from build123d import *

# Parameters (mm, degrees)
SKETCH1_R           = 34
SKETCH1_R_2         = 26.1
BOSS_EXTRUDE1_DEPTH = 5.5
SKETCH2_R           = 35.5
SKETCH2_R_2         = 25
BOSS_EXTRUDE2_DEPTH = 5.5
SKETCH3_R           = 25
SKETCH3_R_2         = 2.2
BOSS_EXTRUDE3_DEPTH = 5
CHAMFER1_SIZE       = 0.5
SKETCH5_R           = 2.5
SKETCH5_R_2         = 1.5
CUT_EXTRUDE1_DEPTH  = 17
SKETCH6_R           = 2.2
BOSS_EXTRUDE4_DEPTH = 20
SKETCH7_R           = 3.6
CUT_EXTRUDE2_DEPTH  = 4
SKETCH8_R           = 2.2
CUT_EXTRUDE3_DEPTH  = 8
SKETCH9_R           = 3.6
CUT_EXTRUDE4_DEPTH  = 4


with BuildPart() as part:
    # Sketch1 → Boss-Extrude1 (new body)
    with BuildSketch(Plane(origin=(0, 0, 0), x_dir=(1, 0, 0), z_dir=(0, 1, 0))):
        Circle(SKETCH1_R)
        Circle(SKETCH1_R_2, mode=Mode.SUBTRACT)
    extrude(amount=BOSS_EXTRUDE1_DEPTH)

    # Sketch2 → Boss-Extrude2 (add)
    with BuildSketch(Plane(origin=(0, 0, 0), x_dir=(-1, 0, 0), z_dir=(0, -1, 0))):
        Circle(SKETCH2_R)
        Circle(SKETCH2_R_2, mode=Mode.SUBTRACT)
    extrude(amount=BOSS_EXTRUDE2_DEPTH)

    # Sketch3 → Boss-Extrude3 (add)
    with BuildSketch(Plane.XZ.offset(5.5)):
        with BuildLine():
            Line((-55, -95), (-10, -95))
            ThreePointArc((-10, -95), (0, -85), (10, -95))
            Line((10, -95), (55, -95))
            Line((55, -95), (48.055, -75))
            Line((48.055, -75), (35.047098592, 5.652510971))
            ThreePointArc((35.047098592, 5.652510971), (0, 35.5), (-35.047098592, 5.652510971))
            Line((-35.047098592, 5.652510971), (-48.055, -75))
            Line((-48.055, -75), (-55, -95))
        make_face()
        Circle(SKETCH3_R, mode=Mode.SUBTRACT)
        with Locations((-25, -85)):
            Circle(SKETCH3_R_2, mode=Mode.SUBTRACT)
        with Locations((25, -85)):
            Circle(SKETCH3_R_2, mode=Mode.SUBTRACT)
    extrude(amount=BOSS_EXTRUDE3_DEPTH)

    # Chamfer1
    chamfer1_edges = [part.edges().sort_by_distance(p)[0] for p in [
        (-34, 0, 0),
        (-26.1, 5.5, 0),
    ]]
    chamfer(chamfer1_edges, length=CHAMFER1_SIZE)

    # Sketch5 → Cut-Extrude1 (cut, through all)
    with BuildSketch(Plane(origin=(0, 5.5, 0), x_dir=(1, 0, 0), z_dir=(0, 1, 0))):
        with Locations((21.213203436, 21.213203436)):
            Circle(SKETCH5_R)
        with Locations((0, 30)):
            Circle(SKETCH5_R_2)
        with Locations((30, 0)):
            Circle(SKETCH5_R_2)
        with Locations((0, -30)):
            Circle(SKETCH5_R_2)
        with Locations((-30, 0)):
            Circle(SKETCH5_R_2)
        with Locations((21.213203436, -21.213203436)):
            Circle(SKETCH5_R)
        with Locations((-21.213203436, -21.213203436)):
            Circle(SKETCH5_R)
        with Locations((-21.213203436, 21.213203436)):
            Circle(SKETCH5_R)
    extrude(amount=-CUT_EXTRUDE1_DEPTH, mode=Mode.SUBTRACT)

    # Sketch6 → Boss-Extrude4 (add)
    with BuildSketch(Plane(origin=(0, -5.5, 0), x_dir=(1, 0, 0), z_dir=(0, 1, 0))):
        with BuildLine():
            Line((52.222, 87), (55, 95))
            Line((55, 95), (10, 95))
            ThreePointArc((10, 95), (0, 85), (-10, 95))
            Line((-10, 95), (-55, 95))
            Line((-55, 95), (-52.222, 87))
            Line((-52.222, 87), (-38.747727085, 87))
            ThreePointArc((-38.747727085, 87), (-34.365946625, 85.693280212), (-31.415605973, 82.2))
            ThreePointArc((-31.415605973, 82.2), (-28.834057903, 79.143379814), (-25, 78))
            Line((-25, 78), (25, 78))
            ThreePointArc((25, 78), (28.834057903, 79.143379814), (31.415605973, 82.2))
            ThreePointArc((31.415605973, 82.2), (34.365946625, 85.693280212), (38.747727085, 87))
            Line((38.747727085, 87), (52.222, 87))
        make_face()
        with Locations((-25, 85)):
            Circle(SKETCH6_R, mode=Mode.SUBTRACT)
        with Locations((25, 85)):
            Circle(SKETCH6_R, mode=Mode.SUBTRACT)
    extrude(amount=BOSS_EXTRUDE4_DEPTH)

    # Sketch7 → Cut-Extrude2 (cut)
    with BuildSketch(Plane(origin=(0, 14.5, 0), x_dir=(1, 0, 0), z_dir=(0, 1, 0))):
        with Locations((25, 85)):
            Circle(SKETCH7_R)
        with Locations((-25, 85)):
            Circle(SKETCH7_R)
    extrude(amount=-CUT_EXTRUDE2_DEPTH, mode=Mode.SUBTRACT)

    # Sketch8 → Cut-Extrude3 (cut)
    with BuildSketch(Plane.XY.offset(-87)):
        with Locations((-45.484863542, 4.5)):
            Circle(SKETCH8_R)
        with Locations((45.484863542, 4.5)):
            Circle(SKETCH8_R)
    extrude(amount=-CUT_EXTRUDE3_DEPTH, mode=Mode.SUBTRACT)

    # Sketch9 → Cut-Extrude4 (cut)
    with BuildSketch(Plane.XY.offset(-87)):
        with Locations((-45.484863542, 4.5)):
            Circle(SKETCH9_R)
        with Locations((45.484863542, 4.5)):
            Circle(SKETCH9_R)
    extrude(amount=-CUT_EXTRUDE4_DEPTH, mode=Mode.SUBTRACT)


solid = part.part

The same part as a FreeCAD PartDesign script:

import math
import FreeCAD as App
import Part
import Sketcher
from FreeCAD import Vector
Q = App.Units.Quantity


def edges_at(feature, points):
    """Names of the edges that pass closest to the given points."""
    edges = feature.Shape.Edges
    near = lambda p: min(range(len(edges)), key=lambda i: edges[i].distToShape(Part.Vertex(*p))[0])
    return sorted({f"Edge{near(p) + 1}" for p in points})

doc = App.newDocument("Part")
params = doc.addObject("Spreadsheet::Sheet", "Params")
for row, (alias, value) in enumerate([
    ("sketch1_diameter", "68 mm"),
    ("sketch1_diameter2", "52.2 mm"),
    ("pad1_length", "5.5 mm"),
    ("sketch2_diameter", "71 mm"),
    ("sketch2_diameter2", "50 mm"),
    ("pad2_length", "5.5 mm"),
    ("sketch3_diameter", "50 mm"),
    ("sketch3_radius", "10 mm"),
    ("sketch3_diameter2", "4.4 mm"),
    ("sketch3_radius2", "35.5 mm"),
    ("sketch3_width", "45 mm"),
    ("pad3_length", "5 mm"),
    ("chamfer_size", "0.5 mm"),
    ("sketch4_diameter", "5 mm"),
    ("sketch4_diameter2", "3 mm"),
    ("sketch5_radius", "10 mm"),
    ("sketch5_radius2", "8 mm"),
    ("sketch5_radius3", "7 mm"),
    ("sketch5_diameter", "4.4 mm"),
    ("sketch5_width", "45 mm"),
    ("pad4_length", "20 mm"),
    ("sketch6_diameter", "7.2 mm"),
    ("pocket2_length", "4 mm"),
    ("sketch7_diameter", "4.4 mm"),
    ("pocket3_length", "8 mm"),
    ("sketch8_diameter", "7.2 mm"),
    ("pocket4_length", "4 mm"),
], start=1):
    params.set(f"A{row}", alias)
    params.set(f"B{row}", "=" + value)
    params.setAlias(f"B{row}", alias)

body = doc.addObject("PartDesign::Body", "Body")

sketch1 = body.newObject("Sketcher::SketchObject", "Sketch")
sketch1.AttachmentSupport = (doc.getObject("XZ_Plane"), [""])
sketch1.MapMode = "FlatFace"
sketch1.addGeometry([
    Part.Circle(Vector(0, 0, 0), Vector(0, 0, 1), 34),
    Part.Circle(Vector(0, 0, 0), Vector(0, 0, 1), 26.1),
], False)
sketch1.addConstraint([
    Sketcher.Constraint("Coincident", 0, 3, -1, 1),
    Sketcher.Constraint("Coincident", 1, 3, -1, 1),
    Sketcher.Constraint("Diameter", 0, Q("68 mm")),
    Sketcher.Constraint("Diameter", 1, Q("52.2 mm")),
])
sketch1.setExpression("Constraints[2]", "Params.sketch1_diameter")
sketch1.setExpression("Constraints[3]", "Params.sketch1_diameter2")
pad1 = body.newObject("PartDesign::Pad", "Pad")
pad1.Profile = sketch1
pad1.setExpression("Length", "Params.pad1_length")
pad1.Reversed = True

sketch2 = body.newObject("Sketcher::SketchObject", "Sketch001")
sketch2.AttachmentSupport = (doc.getObject("XZ_Plane"), [""])
sketch2.MapMode = "FlatFace"
sketch2.addGeometry([
    Part.Circle(Vector(0, 0, 0), Vector(0, 0, 1), 35.5),
    Part.Circle(Vector(0, 0, 0), Vector(0, 0, 1), 25),
], False)
sketch2.addConstraint([
    Sketcher.Constraint("Coincident", 0, 3, -1, 1),
    Sketcher.Constraint("Coincident", 1, 3, -1, 1),
    Sketcher.Constraint("Diameter", 0, Q("71 mm")),
    Sketcher.Constraint("Diameter", 1, Q("50 mm")),
])
sketch2.setExpression("Constraints[2]", "Params.sketch2_diameter")
sketch2.setExpression("Constraints[3]", "Params.sketch2_diameter2")
pad2 = body.newObject("PartDesign::Pad", "Pad001")
pad2.Profile = sketch2
pad2.setExpression("Length", "Params.pad2_length")

sketch3 = body.newObject("Sketcher::SketchObject", "Sketch002")
sketch3.AttachmentSupport = (doc.getObject("XZ_Plane"), [""])
sketch3.MapMode = "FlatFace"
sketch3.AttachmentOffset = App.Placement(Vector(0, 0, 5.5), App.Rotation())
sketch3.addGeometry([
    Part.LineSegment(Vector(-55, -95, 0), Vector(-10, -95, 0)),
    Part.ArcOfCircle(Part.Circle(Vector(0, -95, 0), Vector(0, 0, 1), 10), math.radians(0), math.radians(180)),
    Part.LineSegment(Vector(10, -95, 0), Vector(55, -95, 0)),
    Part.LineSegment(Vector(55, -95, 0), Vector(48.055, -75, 0)),
    Part.LineSegment(Vector(48.055, -75, 0), Vector(35.047099, 5.652511, 0)),
    Part.ArcOfCircle(Part.Circle(Vector(0, 0, 0), Vector(0, 0, 1), 35.5), math.radians(9.161954), math.radians(170.838046)),
    Part.LineSegment(Vector(-35.047099, 5.652511, 0), Vector(-48.055, -75, 0)),
    Part.LineSegment(Vector(-48.055, -75, 0), Vector(-55, -95, 0)),
    Part.Circle(Vector(-25, -85, 0), Vector(0, 0, 1), 2.2),
    Part.Circle(Vector(25, -85, 0), Vector(0, 0, 1), 2.2),
    Part.Circle(Vector(0, 0, 0), Vector(0, 0, 1), 25),
], False)
sketch3.addConstraint([
    Sketcher.Constraint("Coincident", 0, 2, 1, 2),
    Sketcher.Constraint("Coincident", 1, 1, 2, 1),
    Sketcher.Constraint("Coincident", 2, 2, 3, 1),
    Sketcher.Constraint("Coincident", 3, 2, 4, 1),
    Sketcher.Constraint("Tangent", 4, 2, 5, 1),
    Sketcher.Constraint("Tangent", 5, 2, 6, 1),
    Sketcher.Constraint("Coincident", 6, 2, 7, 1),
    Sketcher.Constraint("Coincident", 7, 2, 0, 1),
    Sketcher.Constraint("Horizontal", 0),
    Sketcher.Constraint("Horizontal", 2),
    Sketcher.Constraint("Coincident", 5, 3, -1, 1),
    Sketcher.Constraint("Coincident", 10, 3, -1, 1),
    Sketcher.Constraint("Equal", 8, 9),
    Sketcher.Constraint("Symmetric", 8, 3, 9, 3, -2),
    Sketcher.Constraint("Symmetric", 0, 2, 1, 1, -2),
    Sketcher.Constraint("Symmetric", 3, 2, 6, 2, -2),
    Sketcher.Constraint("Horizontal", 1, 3, 0, 2),
    Sketcher.Constraint("Equal", 0, 2),
    Sketcher.Constraint("Diameter", 10, Q("50 mm")),
    Sketcher.Constraint("Radius", 1, Q("10 mm")),
    Sketcher.Constraint("Diameter", 8, Q("4.4 mm")),
    Sketcher.Constraint("Radius", 5, Q("35.5 mm")),
    Sketcher.Constraint("DistanceX", 0, 1, 0, 2, Q("45 mm")),
    Sketcher.Constraint("DistanceY", 1, 3, -1, 1, Q("95 mm")),
    Sketcher.Constraint("DistanceX", 8, 3, -1, 1, Q("25 mm")),
    Sketcher.Constraint("DistanceY", 8, 3, -1, 1, Q("85 mm")),
    Sketcher.Constraint("DistanceY", 3, 2, -1, 1, Q("75 mm")),
    Sketcher.Constraint("DistanceX", -1, 1, 3, 2, Q("48.055 mm")),
])
sketch3.setExpression("Constraints[18]", "Params.sketch3_diameter")
sketch3.setExpression("Constraints[19]", "Params.sketch3_radius")
sketch3.setExpression("Constraints[20]", "Params.sketch3_diameter2")
sketch3.setExpression("Constraints[21]", "Params.sketch3_radius2")
sketch3.setExpression("Constraints[22]", "Params.sketch3_width")
pad3 = body.newObject("PartDesign::Pad", "Pad002")
pad3.Profile = sketch3
pad3.setExpression("Length", "Params.pad3_length")
doc.recompute()

chamfer = body.newObject("PartDesign::Chamfer", "Chamfer")
chamfer.Base = (pad3, edges_at(pad3, [(-34, 0, 0), (-26.1, 5.5, 0)]))
chamfer.setExpression("Size", "Params.chamfer_size")

sketch4 = body.newObject("Sketcher::SketchObject", "Sketch003")
sketch4.AttachmentSupport = (doc.getObject("XZ_Plane"), [""])
sketch4.MapMode = "FlatFace"
sketch4.AttachmentOffset = App.Placement(Vector(0, 0, -5.5), App.Rotation())
sketch4.addGeometry([
    Part.Circle(Vector(21.213203, -21.213203, 0), Vector(0, 0, 1), 2.5),
    Part.Circle(Vector(0, -30, 0), Vector(0, 0, 1), 1.5),
    Part.Circle(Vector(30, 0, 0), Vector(0, 0, 1), 1.5),
    Part.Circle(Vector(0, 30, 0), Vector(0, 0, 1), 1.5),
    Part.Circle(Vector(-30, 0, 0), Vector(0, 0, 1), 1.5),
    Part.Circle(Vector(21.213203, 21.213203, 0), Vector(0, 0, 1), 2.5),
    Part.Circle(Vector(-21.213203, 21.213203, 0), Vector(0, 0, 1), 2.5),
    Part.Circle(Vector(-21.213203, -21.213203, 0), Vector(0, 0, 1), 2.5),
], False)
sketch4.addConstraint([
    Sketcher.Constraint("Equal", 1, 2),
    Sketcher.Constraint("Equal", 2, 3),
    Sketcher.Constraint("Equal", 3, 4),
    Sketcher.Constraint("Equal", 0, 5),
    Sketcher.Constraint("Equal", 5, 6),
    Sketcher.Constraint("Equal", 6, 7),
    Sketcher.Constraint("Symmetric", 1, 3, 3, 3, -1, 1),
    Sketcher.Constraint("Symmetric", 2, 3, 4, 3, -1, 1),
    Sketcher.Constraint("Symmetric", 0, 3, 6, 3, -1, 1),
    Sketcher.Constraint("Symmetric", 5, 3, 7, 3, -1, 1),
    Sketcher.Constraint("Symmetric", 5, 3, 6, 3, -2),
    Sketcher.Constraint("PointOnObject", 1, 3, -2),
    Sketcher.Constraint("PointOnObject", 2, 3, -1),
    Sketcher.Constraint("Diameter", 0, Q("5 mm")),
    Sketcher.Constraint("Diameter", 1, Q("3 mm")),
    Sketcher.Constraint("DistanceY", 1, 3, -1, 1, Q("30 mm")),
    Sketcher.Constraint("DistanceX", -1, 1, 2, 3, Q("30 mm")),
    Sketcher.Constraint("DistanceX", -1, 1, 0, 3, Q("21.213203 mm")),
    Sketcher.Constraint("DistanceY", 0, 3, -1, 1, Q("21.213203 mm")),
])
sketch4.setExpression("Constraints[13]", "Params.sketch4_diameter")
sketch4.setExpression("Constraints[14]", "Params.sketch4_diameter2")
pocket1 = body.newObject("PartDesign::Pocket", "Pocket")
pocket1.Profile = sketch4
pocket1.Type = "ThroughAll"
pocket1.Reversed = True

sketch5 = body.newObject("Sketcher::SketchObject", "Sketch004")
sketch5.AttachmentSupport = (doc.getObject("XZ_Plane"), [""])
sketch5.MapMode = "FlatFace"
sketch5.AttachmentOffset = App.Placement(Vector(0, 0, 5.5), App.Rotation())
sketch5.addGeometry([
    Part.LineSegment(Vector(52.222, -87, 0), Vector(55, -95, 0)),
    Part.LineSegment(Vector(55, -95, 0), Vector(10, -95, 0)),
    Part.ArcOfCircle(Part.Circle(Vector(0, -95, 0), Vector(0, 0, 1), 10), math.radians(0), math.radians(180)),
    Part.LineSegment(Vector(-10, -95, 0), Vector(-55, -95, 0)),
    Part.LineSegment(Vector(-55, -95, 0), Vector(-52.222, -87, 0)),
    Part.LineSegment(Vector(-52.222, -87, 0), Vector(-38.747727, -87, 0)),
    Part.ArcOfCircle(Part.Circle(Vector(-38.747727, -79, 0), Vector(0, 0, 1), 8), math.radians(-90), math.radians(-23.578178)),
    Part.ArcOfCircle(Part.Circle(Vector(-25, -85, 0), Vector(0, 0, 1), 7), math.radians(90), math.radians(156.421822)),
    Part.LineSegment(Vector(-25, -78, 0), Vector(25, -78, 0)),
    Part.ArcOfCircle(Part.Circle(Vector(25, -85, 0), Vector(0, 0, 1), 7), math.radians(23.578178), math.radians(90)),
    Part.ArcOfCircle(Part.Circle(Vector(38.747727, -79, 0), Vector(0, 0, 1), 8), math.radians(-156.421822), math.radians(-90)),
    Part.LineSegment(Vector(38.747727, -87, 0), Vector(52.222, -87, 0)),
    Part.Circle(Vector(-25, -85, 0), Vector(0, 0, 1), 2.2),
    Part.Circle(Vector(25, -85, 0), Vector(0, 0, 1), 2.2),
], False)
sketch5.addConstraint([
    Sketcher.Constraint("Coincident", 0, 2, 1, 1),
    Sketcher.Constraint("Coincident", 1, 2, 2, 1),
    Sketcher.Constraint("Coincident", 2, 2, 3, 1),
    Sketcher.Constraint("Coincident", 3, 2, 4, 1),
    Sketcher.Constraint("Coincident", 4, 2, 5, 1),
    Sketcher.Constraint("Tangent", 5, 2, 6, 1),
    Sketcher.Constraint("Tangent", 6, 2, 7, 2),
    Sketcher.Constraint("Tangent", 7, 1, 8, 1),
    Sketcher.Constraint("Tangent", 8, 2, 9, 2),
    Sketcher.Constraint("Tangent", 9, 1, 10, 1),
    Sketcher.Constraint("Tangent", 10, 2, 11, 1),
    Sketcher.Constraint("Coincident", 11, 2, 0, 1),
    Sketcher.Constraint("Horizontal", 1),
    Sketcher.Constraint("Horizontal", 3),
    Sketcher.Constraint("Horizontal", 5),
    Sketcher.Constraint("Horizontal", 8),
    Sketcher.Constraint("Horizontal", 11),
    Sketcher.Constraint("Coincident", 12, 3, 7, 3),
    Sketcher.Constraint("Coincident", 13, 3, 9, 3),
    Sketcher.Constraint("Equal", 7, 9),
    Sketcher.Constraint("Equal", 6, 10),
    Sketcher.Constraint("Equal", 12, 13),
    Sketcher.Constraint("Symmetric", 6, 3, 10, 3, -2),
    Sketcher.Constraint("Symmetric", 1, 2, 2, 2, -2),
    Sketcher.Constraint("Horizontal", 2, 3, 0, 2),
    Sketcher.Constraint("Equal", 1, 3),
    Sketcher.Constraint("Equal", 5, 11),
    Sketcher.Constraint("Radius", 2, Q("10 mm")),
    Sketcher.Constraint("Radius", 6, Q("8 mm")),
    Sketcher.Constraint("Radius", 7, Q("7 mm")),
    Sketcher.Constraint("Diameter", 12, Q("4.4 mm")),
    Sketcher.Constraint("DistanceX", 1, 2, 1, 1, Q("45 mm")),
    Sketcher.Constraint("DistanceX", 8, 1, 8, 2, Q("50 mm")),
    Sketcher.Constraint("DistanceY", 2, 3, -1, 1, Q("95 mm")),
    Sketcher.Constraint("DistanceY", 6, 3, -1, 1, Q("79 mm")),
    Sketcher.Constraint("DistanceY", 7, 3, -1, 1, Q("85 mm")),
    Sketcher.Constraint("DistanceX", 4, 2, -1, 1, Q("52.222 mm")),
])
sketch5.setExpression("Constraints[27]", "Params.sketch5_radius")
sketch5.setExpression("Constraints[28]", "Params.sketch5_radius2")
sketch5.setExpression("Constraints[29]", "Params.sketch5_radius3")
sketch5.setExpression("Constraints[30]", "Params.sketch5_diameter")
sketch5.setExpression("Constraints[31]", "Params.sketch5_width")
pad4 = body.newObject("PartDesign::Pad", "Pad003")
pad4.Profile = sketch5
pad4.setExpression("Length", "Params.pad4_length")
pad4.Reversed = True

sketch6 = body.newObject("Sketcher::SketchObject", "Sketch005")
sketch6.AttachmentSupport = (doc.getObject("XZ_Plane"), [""])
sketch6.MapMode = "FlatFace"
sketch6.AttachmentOffset = App.Placement(Vector(0, 0, -14.5), App.Rotation())
sketch6.addGeometry([
    Part.Circle(Vector(25, -85, 0), Vector(0, 0, 1), 3.6),
    Part.Circle(Vector(-25, -85, 0), Vector(0, 0, 1), 3.6),
], False)
sketch6.addConstraint([
    Sketcher.Constraint("Equal", 0, 1),
    Sketcher.Constraint("Symmetric", 0, 3, 1, 3, -2),
    Sketcher.Constraint("Diameter", 0, Q("7.2 mm")),
    Sketcher.Constraint("DistanceX", -1, 1, 0, 3, Q("25 mm")),
    Sketcher.Constraint("DistanceY", 0, 3, -1, 1, Q("85 mm")),
])
sketch6.setExpression("Constraints[2]", "Params.sketch6_diameter")
pocket2 = body.newObject("PartDesign::Pocket", "Pocket001")
pocket2.Profile = sketch6
pocket2.setExpression("Length", "Params.pocket2_length")
pocket2.Reversed = True

sketch7 = body.newObject("Sketcher::SketchObject", "Sketch006")
sketch7.AttachmentSupport = (doc.getObject("XY_Plane"), [""])
sketch7.MapMode = "FlatFace"
sketch7.AttachmentOffset = App.Placement(Vector(0, 0, -87), App.Rotation())
sketch7.addGeometry([
    Part.Circle(Vector(-45.484864, 4.5, 0), Vector(0, 0, 1), 2.2),
    Part.Circle(Vector(45.484864, 4.5, 0), Vector(0, 0, 1), 2.2),
], False)
sketch7.addConstraint([
    Sketcher.Constraint("Equal", 0, 1),
    Sketcher.Constraint("Symmetric", 0, 3, 1, 3, -2),
    Sketcher.Constraint("Diameter", 0, Q("4.4 mm")),
    Sketcher.Constraint("DistanceY", -1, 1, 0, 3, Q("4.5 mm")),
    Sketcher.Constraint("DistanceX", 0, 3, -1, 1, Q("45.484864 mm")),
])
sketch7.setExpression("Constraints[2]", "Params.sketch7_diameter")
pocket3 = body.newObject("PartDesign::Pocket", "Pocket002")
pocket3.Profile = sketch7
pocket3.setExpression("Length", "Params.pocket3_length")

sketch8 = body.newObject("Sketcher::SketchObject", "Sketch007")
sketch8.AttachmentSupport = (doc.getObject("XY_Plane"), [""])
sketch8.MapMode = "FlatFace"
sketch8.AttachmentOffset = App.Placement(Vector(0, 0, -87), App.Rotation())
sketch8.addGeometry([
    Part.Circle(Vector(-45.484864, 4.5, 0), Vector(0, 0, 1), 3.6),
    Part.Circle(Vector(45.484864, 4.5, 0), Vector(0, 0, 1), 3.6),
], False)
sketch8.addConstraint([
    Sketcher.Constraint("Equal", 0, 1),
    Sketcher.Constraint("Symmetric", 0, 3, 1, 3, -2),
    Sketcher.Constraint("Diameter", 0, Q("7.2 mm")),
    Sketcher.Constraint("DistanceY", -1, 1, 0, 3, Q("4.5 mm")),
    Sketcher.Constraint("DistanceX", 0, 3, -1, 1, Q("45.484864 mm")),
])
sketch8.setExpression("Constraints[2]", "Params.sketch8_diameter")
pocket4 = body.newObject("PartDesign::Pocket", "Pocket003")
pocket4.Profile = sketch8
pocket4.setExpression("Length", "Params.pocket4_length")

doc.recompute()
